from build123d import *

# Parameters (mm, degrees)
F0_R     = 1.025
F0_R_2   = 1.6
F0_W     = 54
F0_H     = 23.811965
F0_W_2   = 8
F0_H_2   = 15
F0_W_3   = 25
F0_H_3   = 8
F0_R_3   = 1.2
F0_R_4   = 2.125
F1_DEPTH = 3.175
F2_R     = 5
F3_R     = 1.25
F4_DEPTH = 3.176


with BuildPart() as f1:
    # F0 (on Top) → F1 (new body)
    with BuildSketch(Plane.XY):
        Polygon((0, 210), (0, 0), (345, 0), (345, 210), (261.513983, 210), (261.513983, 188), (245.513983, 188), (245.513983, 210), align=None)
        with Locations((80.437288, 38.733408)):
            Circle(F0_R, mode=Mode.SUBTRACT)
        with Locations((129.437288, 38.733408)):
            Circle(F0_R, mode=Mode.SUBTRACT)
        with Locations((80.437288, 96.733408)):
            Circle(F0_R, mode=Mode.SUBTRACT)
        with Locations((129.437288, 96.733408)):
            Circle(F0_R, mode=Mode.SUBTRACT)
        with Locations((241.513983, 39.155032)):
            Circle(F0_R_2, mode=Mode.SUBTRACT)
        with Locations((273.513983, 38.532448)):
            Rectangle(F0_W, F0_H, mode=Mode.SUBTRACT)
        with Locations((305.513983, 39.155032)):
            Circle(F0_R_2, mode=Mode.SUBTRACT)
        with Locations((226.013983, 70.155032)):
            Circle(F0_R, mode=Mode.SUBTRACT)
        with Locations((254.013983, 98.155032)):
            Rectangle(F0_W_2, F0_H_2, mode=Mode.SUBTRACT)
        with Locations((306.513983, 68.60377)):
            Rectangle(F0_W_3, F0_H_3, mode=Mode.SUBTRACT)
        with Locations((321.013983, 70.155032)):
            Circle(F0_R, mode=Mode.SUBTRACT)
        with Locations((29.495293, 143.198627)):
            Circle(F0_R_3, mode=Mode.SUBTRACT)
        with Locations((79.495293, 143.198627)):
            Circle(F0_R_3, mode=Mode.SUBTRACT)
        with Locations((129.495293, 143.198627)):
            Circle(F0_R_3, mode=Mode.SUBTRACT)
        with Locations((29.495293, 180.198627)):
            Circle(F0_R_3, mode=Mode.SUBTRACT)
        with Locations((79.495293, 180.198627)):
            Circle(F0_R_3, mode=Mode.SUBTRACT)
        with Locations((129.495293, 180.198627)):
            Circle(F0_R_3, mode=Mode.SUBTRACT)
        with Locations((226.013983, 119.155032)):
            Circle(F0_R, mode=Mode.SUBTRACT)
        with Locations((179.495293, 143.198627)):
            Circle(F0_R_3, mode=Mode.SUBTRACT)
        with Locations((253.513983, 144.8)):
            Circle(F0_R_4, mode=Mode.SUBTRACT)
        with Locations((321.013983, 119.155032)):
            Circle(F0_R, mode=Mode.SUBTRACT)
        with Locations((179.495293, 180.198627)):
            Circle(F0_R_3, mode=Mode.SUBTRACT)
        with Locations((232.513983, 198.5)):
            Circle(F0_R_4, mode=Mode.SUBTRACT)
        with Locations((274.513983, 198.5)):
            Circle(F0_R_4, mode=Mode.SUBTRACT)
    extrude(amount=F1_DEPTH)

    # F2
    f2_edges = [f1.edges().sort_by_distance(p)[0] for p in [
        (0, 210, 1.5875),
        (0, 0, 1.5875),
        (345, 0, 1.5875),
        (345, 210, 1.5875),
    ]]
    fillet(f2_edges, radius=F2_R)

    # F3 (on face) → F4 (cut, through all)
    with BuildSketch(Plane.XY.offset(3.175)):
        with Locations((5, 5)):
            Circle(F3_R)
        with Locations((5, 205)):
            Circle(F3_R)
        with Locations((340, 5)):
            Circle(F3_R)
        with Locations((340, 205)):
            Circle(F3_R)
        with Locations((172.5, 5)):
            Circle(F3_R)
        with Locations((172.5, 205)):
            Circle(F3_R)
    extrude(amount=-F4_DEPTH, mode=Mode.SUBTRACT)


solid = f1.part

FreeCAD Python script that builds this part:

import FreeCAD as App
import Part
import Sketcher

V = App.Vector
Q = App.Units.Quantity


def edges_at(feature, points):
    """Names of the edges that pass closest to the given points."""
    edges = feature.Shape.Edges
    near = lambda p: min(range(len(edges)), key=lambda i: edges[i].distToShape(Part.Vertex(*p))[0])
    return sorted({f"Edge{near(p) + 1}" for p in points})


def add_polygon(sketch, points):
    """Adds a closed chain of lines whose ends are joined by coincident constraints."""
    first, n = sketch.GeometryCount, len(points)
    for a, b in zip(points, points[1:] + points[:1]):
        sketch.addGeometry(Part.LineSegment(App.Vector(*a, 0), App.Vector(*b, 0)), False)
    for i in range(n):
        sketch.addConstraint(Sketcher.Constraint("Coincident", first + i, 2, first + (i + 1) % n, 1))

doc = App.newDocument("Part")
params = doc.addObject("Spreadsheet::Sheet", "Params")
for row, (alias, value) in enumerate([
    ("sketch1_diameter", "3.2 mm"),
    ("sketch1_diameter2", "2.4 mm"),
    ("sketch1_diameter3", "2.05 mm"),
    ("sketch1_diameter4", "4.25 mm"),
    ("sketch1_width", "345 mm"),
    ("pad1_length", "3.175 mm"),
    ("fillet_radius", "5 mm"),
    ("sketch2_diameter", "2.5 mm"),
], start=1):
    params.set(f"A{row}", alias)
    params.set(f"B{row}", "=" + value)
    params.setAlias(f"B{row}", alias)

body = doc.addObject("PartDesign::Body", "Body")

# Sketch on XY plane
sketch1 = body.newObject("Sketcher::SketchObject", "Sketch")
sketch1.AttachmentSupport = (doc.getObject("XY_Plane"), [""])
sketch1.MapMode = "FlatFace"
add_polygon(sketch1, [(0, 210), (0, 0), (345, 0), (345, 210), (261.5, 210), (261.5, 188), (245.5, 188), (245.5, 210)])  # lines 0-7
sketch1.addGeometry(Part.Circle(V(80.4, 38.7, 0), V(0, 0, 1), 1), False)  # 8
sketch1.addGeometry(Part.Circle(V(129.4, 38.7, 0), V(0, 0, 1), 1), False)  # 9
sketch1.addGeometry(Part.Circle(V(80.4, 96.7, 0), V(0, 0, 1), 1), False)  # 10
sketch1.addGeometry(Part.Circle(V(129.4, 96.7, 0), V(0, 0, 1), 1), False)  # 11
sketch1.addGeometry(Part.Circle(V(241.5, 39.2, 0), V(0, 0, 1), 1.6), False)  # 12
add_polygon(sketch1, [(300.5, 26.6), (246.5, 26.6), (246.5, 50.4), (300.5, 50.4)])  # lines 13-16
sketch1.addGeometry(Part.Circle(V(305.5, 39.2, 0), V(0, 0, 1), 1.6), False)  # 17
add_polygon(sketch1, [(319, 64.6), (294, 64.6), (294, 72.6), (319, 72.6)])  # lines 18-21
sketch1.addGeometry(Part.Circle(V(226, 70.2, 0), V(0, 0, 1), 1), False)  # 22
sketch1.addGeometry(Part.Circle(V(321, 70.2, 0), V(0, 0, 1), 1), False)  # 23
add_polygon(sketch1, [(258, 90.7), (250, 90.7), (250, 105.7), (258, 105.7)])  # lines 24-27
sketch1.addGeometry(Part.Circle(V(29.5, 143.2, 0), V(0, 0, 1), 1.2), False)  # 28
sketch1.addGeometry(Part.Circle(V(79.5, 143.2, 0), V(0, 0, 1), 1.2), False)  # 29
sketch1.addGeometry(Part.Circle(V(129.5, 143.2, 0), V(0, 0, 1), 1.2), False)  # 30
sketch1.addGeometry(Part.Circle(V(29.5, 180.2, 0), V(0, 0, 1), 1.2), False)  # 31
sketch1.addGeometry(Part.Circle(V(79.5, 180.2, 0), V(0, 0, 1), 1.2), False)  # 32
sketch1.addGeometry(Part.Circle(V(129.5, 180.2, 0), V(0, 0, 1), 1.2), False)  # 33
sketch1.addGeometry(Part.Circle(V(226, 119.2, 0), V(0, 0, 1), 1), False)  # 34
sketch1.addGeometry(Part.Circle(V(179.5, 143.2, 0), V(0, 0, 1), 1.2), False)  # 35
sketch1.addGeometry(Part.Circle(V(321, 119.2, 0), V(0, 0, 1), 1), False)  # 36
sketch1.addGeometry(Part.Circle(V(253.5, 144.8, 0), V(0, 0, 1), 2.1), False)  # 37
sketch1.addGeometry(Part.Circle(V(179.5, 180.2, 0), V(0, 0, 1), 1.2), False)  # 38
sketch1.addGeometry(Part.Circle(V(232.5, 198.5, 0), V(0, 0, 1), 2.1), False)  # 39
sketch1.addGeometry(Part.Circle(V(274.5, 198.5, 0), V(0, 0, 1), 2.1), False)  # 40
sketch1.addConstraint(Sketcher.Constraint("Vertical", 0))
sketch1.addConstraint(Sketcher.Constraint("Horizontal", 1))
sketch1.addConstraint(Sketcher.Constraint("Vertical", 2))
sketch1.addConstraint(Sketcher.Constraint("Horizontal", 3))
sketch1.addConstraint(Sketcher.Constraint("Vertical", 4))
sketch1.addConstraint(Sketcher.Constraint("Horizontal", 5))
sketch1.addConstraint(Sketcher.Constraint("Vertical", 6))
sketch1.addConstraint(Sketcher.Constraint("Horizontal", 7))
sketch1.addConstraint(Sketcher.Constraint("Horizontal", 13))
sketch1.addConstraint(Sketcher.Constraint("Vertical", 14))
sketch1.addConstraint(Sketcher.Constraint("Horizontal", 15))
sketch1.addConstraint(Sketcher.Constraint("Vertical", 16))
sketch1.addConstraint(Sketcher.Constraint("Horizontal", 18))
sketch1.addConstraint(Sketcher.Constraint("Vertical", 19))
sketch1.addConstraint(Sketcher.Constraint("Horizontal", 20))
sketch1.addConstraint(Sketcher.Constraint("Vertical", 21))
sketch1.addConstraint(Sketcher.Constraint("Horizontal", 24))
sketch1.addConstraint(Sketcher.Constraint("Vertical", 25))
sketch1.addConstraint(Sketcher.Constraint("Horizontal", 26))
sketch1.addConstraint(Sketcher.Constraint("Vertical", 27))
sketch1.addConstraint(Sketcher.Constraint("Coincident", 0, 2, -1, 1))
sketch1.addConstraint(Sketcher.Constraint("Equal", 8, 9))
sketch1.addConstraint(Sketcher.Constraint("Equal", 9, 10))
sketch1.addConstraint(Sketcher.Constraint("Equal", 10, 11))
sketch1.addConstraint(Sketcher.Constraint("Equal", 12, 17))
sketch1.addConstraint(Sketcher.Constraint("Equal", 11, 22))
sketch1.addConstraint(Sketcher.Constraint("Equal", 22, 23))
sketch1.addConstraint(Sketcher.Constraint("Equal", 28, 29))
sketch1.addConstraint(Sketcher.Constraint("Equal", 29, 30))
sketch1.addConstraint(Sketcher.Constraint("Equal", 30, 31))
sketch1.addConstraint(Sketcher.Constraint("Equal", 31, 32))
sketch1.addConstraint(Sketcher.Constraint("Equal", 32, 33))
sketch1.addConstraint(Sketcher.Constraint("Equal", 23, 34))
sketch1.addConstraint(Sketcher.Constraint("Equal", 33, 35))
sketch1.addConstraint(Sketcher.Constraint("Equal", 34, 36))
sketch1.addConstraint(Sketcher.Constraint("Equal", 35, 38))
sketch1.addConstraint(Sketcher.Constraint("Equal", 37, 39))
sketch1.addConstraint(Sketcher.Constraint("Equal", 39, 40))
sketch1.addConstraint(Sketcher.Constraint("Horizontal", 8, 3, 9, 3))
sketch1.addConstraint(Sketcher.Constraint("Horizontal", 10, 3, 11, 3))
sketch1.addConstraint(Sketcher.Constraint("Horizontal", 12, 3, 17, 3))
sketch1.addConstraint(Sketcher.Constraint("Horizontal", 22, 3, 23, 3))
sketch1.addConstraint(Sketcher.Constraint("Horizontal", 28, 3, 29, 3))
sketch1.addConstraint(Sketcher.Constraint("Horizontal", 29, 3, 30, 3))
sketch1.addConstraint(Sketcher.Constraint("Horizontal", 31, 3, 32, 3))
sketch1.addConstraint(Sketcher.Constraint("Horizontal", 32, 3, 33, 3))
sketch1.addConstraint(Sketcher.Constraint("Horizontal", 30, 3, 35, 3))
sketch1.addConstraint(Sketcher.Constraint("Horizontal", 34, 3, 36, 3))
sketch1.addConstraint(Sketcher.Constraint("Horizontal", 33, 3, 38, 3))
sketch1.addConstraint(Sketcher.Constraint("Horizontal", 39, 3, 40, 3))
sketch1.addConstraint(Sketcher.Constraint("Horizontal", 3, 2, 6, 2))
sketch1.addConstraint(Sketcher.Constraint("Vertical", 8, 3, 10, 3))
sketch1.addConstraint(Sketcher.Constraint("Vertical", 9, 3, 11, 3))
sketch1.addConstraint(Sketcher.Constraint("Vertical", 28, 3, 31, 3))
sketch1.addConstraint(Sketcher.Constraint("Vertical", 29, 3, 32, 3))
sketch1.addConstraint(Sketcher.Constraint("Vertical", 30, 3, 33, 3))
sketch1.addConstraint(Sketcher.Constraint("Vertical", 22, 3, 34, 3))
sketch1.addConstraint(Sketcher.Constraint("Vertical", 23, 3, 36, 3))
sketch1.addConstraint(Sketcher.Constraint("Vertical", 35, 3, 38, 3))
sketch1.addConstraint(Sketcher.Constraint("Equal", 26, 19))
sketch1.addConstraint(Sketcher.Constraint("Diameter", 12, Q("3.2 mm")))
sketch1.addConstraint(Sketcher.Constraint("Diameter", 28, Q("2.4 mm")))
sketch1.addConstraint(Sketcher.Constraint("Diameter", 8, Q("2.05 mm")))
sketch1.addConstraint(Sketcher.Constraint("Diameter", 37, Q("4.25 mm")))
sketch1.addConstraint(Sketcher.Constraint("DistanceX", 1, 1, 1, 2, Q("345 mm")))
sketch1.addConstraint(Sketcher.Constraint("DistanceX", 5, 2, 5, 1, Q("16 mm")))
sketch1.addConstraint(Sketcher.Constraint("DistanceX", 13, 2, 13, 1, Q("54 mm")))
sketch1.addConstraint(Sketcher.Constraint("DistanceX", 18, 2, 18, 1, Q("25 mm")))
sketch1.addConstraint(Sketcher.Constraint("DistanceX", 24, 2, 24, 1, Q("8 mm")))
sketch1.addConstraint(Sketcher.Constraint("DistanceY", 0, 2, 0, 1, Q("210 mm")))
sketch1.addConstraint(Sketcher.Constraint("DistanceY", 4, 2, 4, 1, Q("22 mm")))
sketch1.addConstraint(Sketcher.Constraint("DistanceY", 25, 1, 25, 2, Q("15 mm")))
sketch1.addConstraint(Sketcher.Constraint("DistanceX", 8, 3, 9, 3, Q("49 mm")))
sketch1.addConstraint(Sketcher.Constraint("DistanceY", 8, 3, 10, 3, Q("58 mm")))
sketch1.addConstraint(Sketcher.Constraint("DistanceX", 12, 3, 17, 3, Q("64 mm")))
sketch1.addConstraint(Sketcher.Constraint("DistanceY", 12, 3, 22, 3, Q("31 mm")))
sketch1.addConstraint(Sketcher.Constraint("DistanceX", 22, 3, 23, 3, Q("95 mm")))
sketch1.addConstraint(Sketcher.Constraint("DistanceX", 28, 3, 29, 3, Q("50 mm")))
sketch1.addConstraint(Sketcher.Constraint("DistanceX", 29, 3, 30, 3, Q("50 mm")))
sketch1.addConstraint(Sketcher.Constraint("DistanceY", 28, 3, 31, 3, Q("37 mm")))
sketch1.addConstraint(Sketcher.Constraint("DistanceY", 22, 3, 34, 3, Q("49 mm")))
sketch1.addConstraint(Sketcher.Constraint("DistanceX", 30, 3, 35, 3, Q("50 mm")))
sketch1.addConstraint(Sketcher.Constraint("DistanceX", 39, 3, 37, 3, Q("21 mm")))
sketch1.addConstraint(Sketcher.Constraint("DistanceX", 39, 3, 40, 3, Q("42 mm")))
sketch1.addConstraint(Sketcher.Constraint("DistanceX", 3, 2, 40, 3, Q("13 mm")))
sketch1.addConstraint(Sketcher.Constraint("DistanceX", 12, 3, 13, 2, Q("5 mm")))
sketch1.addConstraint(Sketcher.Constraint("DistanceX", 18, 2, 23, 3, Q("27 mm")))
sketch1.addConstraint(Sketcher.Constraint("DistanceX", 22, 3, 24, 2, Q("24 mm")))
sketch1.addConstraint(Sketcher.Constraint("DistanceY", -1, 1, 37, 3, Q("144.8 mm")))
sketch1.addConstraint(Sketcher.Constraint("DistanceY", -1, 1, 39, 3, Q("198.5 mm")))
sketch1.addConstraint(Sketcher.Constraint("DistanceX", 22, 3, 12, 3, Q("15.5 mm")))
sketch1.addConstraint(Sketcher.Constraint("DistanceX", 34, 3, 37, 3, Q("27.5 mm")))
sketch1.addConstraint(Sketcher.Constraint("DistanceY", 22, 3, 24, 2, Q("20.5 mm")))
sketch1.addConstraint(Sketcher.Constraint("DistanceY", 12, 3, 14, 2, Q("11.283399 mm")))
sketch1.addConstraint(Sketcher.Constraint("DistanceX", 3, 2, 3, 1, Q("83.486017 mm")))
sketch1.addConstraint(Sketcher.Constraint("DistanceY", 14, 1, 14, 2, Q("23.811965 mm")))
sketch1.addConstraint(Sketcher.Constraint("DistanceX", -1, 1, 9, 3, Q("129.437288 mm")))
sketch1.addConstraint(Sketcher.Constraint("DistanceY", -1, 1, 14, 2, Q("50.438431 mm")))
sketch1.addConstraint(Sketcher.Constraint("DistanceY", -1, 1, 18, 2, Q("64.60377 mm")))
sketch1.addConstraint(Sketcher.Constraint("DistanceY", 10, 3, 28, 3, Q("46.465219 mm")))
sketch1.addConstraint(Sketcher.Constraint("DistanceX", 28, 3, 22, 3, Q("196.51869 mm")))
sketch1.addConstraint(Sketcher.Constraint("DistanceY", -1, 1, 8, 3, Q("38.733408 mm")))
sketch1.setExpression("Constraints[80]", "Params.sketch1_diameter")
sketch1.setExpression("Constraints[81]", "Params.sketch1_diameter2")
sketch1.setExpression("Constraints[82]", "Params.sketch1_diameter3")
sketch1.setExpression("Constraints[83]", "Params.sketch1_diameter4")
sketch1.setExpression("Constraints[84]", "Params.sketch1_width")
pad1 = body.newObject("PartDesign::Pad", "Pad")
pad1.Profile = sketch1
pad1.setExpression("Length", "Params.pad1_length")
doc.recompute()

fillet = body.newObject("PartDesign::Fillet", "Fillet")
fillet.Base = (pad1, edges_at(pad1, [
    (0, 210, 1.587),
    (0, 0, 1.587),
    (345, 0, 1.587),
    (345, 210, 1.587),
]))
fillet.setExpression("Radius", "Params.fillet_radius")

# Sketch on XY plane
sketch2 = body.newObject("Sketcher::SketchObject", "Sketch001")
sketch2.AttachmentSupport = (doc.getObject("XY_Plane"), [""])
sketch2.MapMode = "FlatFace"
sketch2.AttachmentOffset = App.Placement(V(0, 0, 3.175), App.Rotation())
sketch2.addGeometry(Part.Circle(V(5, 5, 0), V(0, 0, 1), 1.2), False)
sketch2.addGeometry(Part.Circle(V(5, 205, 0), V(0, 0, 1), 1.2), False)
sketch2.addGeometry(Part.Circle(V(340, 5, 0), V(0, 0, 1), 1.2), False)
sketch2.addGeometry(Part.Circle(V(340, 205, 0), V(0, 0, 1), 1.2), False)
sketch2.addGeometry(Part.Circle(V(172.5, 5, 0), V(0, 0, 1), 1.2), False)
sketch2.addGeometry(Part.Circle(V(172.5, 205, 0), V(0, 0, 1), 1.2), False)
sketch2.addConstraint(Sketcher.Constraint("Equal", 0, 1))
sketch2.addConstraint(Sketcher.Constraint("Equal", 1, 2))
sketch2.addConstraint(Sketcher.Constraint("Equal", 2, 3))
sketch2.addConstraint(Sketcher.Constraint("Equal", 3, 4))
sketch2.addConstraint(Sketcher.Constraint("Equal", 4, 5))
sketch2.addConstraint(Sketcher.Constraint("Horizontal", 0, 3, 2, 3))
sketch2.addConstraint(Sketcher.Constraint("Horizontal", 1, 3, 3, 3))
sketch2.addConstraint(Sketcher.Constraint("Horizontal", 2, 3, 4, 3))
sketch2.addConstraint(Sketcher.Constraint("Horizontal", 3, 3, 5, 3))
sketch2.addConstraint(Sketcher.Constraint("Vertical", 0, 3, 1, 3))
sketch2.addConstraint(Sketcher.Constraint("Vertical", 2, 3, 3, 3))
sketch2.addConstraint(Sketcher.Constraint("Vertical", 4, 3, 5, 3))
sketch2.addConstraint(Sketcher.Constraint("Diameter", 0, Q("2.5 mm")))
sketch2.addConstraint(Sketcher.Constraint("DistanceX", -1, 1, 0, 3, Q("5 mm")))
sketch2.addConstraint(Sketcher.Constraint("DistanceY", -1, 1, 0, 3, Q("5 mm")))
sketch2.addConstraint(Sketcher.Constraint("DistanceY", -1, 1, 1, 3, Q("205 mm")))
sketch2.addConstraint(Sketcher.Constraint("DistanceX", -1, 1, 2, 3, Q("340 mm")))
sketch2.addConstraint(Sketcher.Constraint("DistanceX", -1, 1, 4, 3, Q("172.5 mm")))
sketch2.setExpression("Constraints[12]", "Params.sketch2_diameter")
pocket1 = body.newObject("PartDesign::Pocket", "Pocket")
pocket1.Profile = sketch2
pocket1.Type = "ThroughAll"

doc.recompute()
